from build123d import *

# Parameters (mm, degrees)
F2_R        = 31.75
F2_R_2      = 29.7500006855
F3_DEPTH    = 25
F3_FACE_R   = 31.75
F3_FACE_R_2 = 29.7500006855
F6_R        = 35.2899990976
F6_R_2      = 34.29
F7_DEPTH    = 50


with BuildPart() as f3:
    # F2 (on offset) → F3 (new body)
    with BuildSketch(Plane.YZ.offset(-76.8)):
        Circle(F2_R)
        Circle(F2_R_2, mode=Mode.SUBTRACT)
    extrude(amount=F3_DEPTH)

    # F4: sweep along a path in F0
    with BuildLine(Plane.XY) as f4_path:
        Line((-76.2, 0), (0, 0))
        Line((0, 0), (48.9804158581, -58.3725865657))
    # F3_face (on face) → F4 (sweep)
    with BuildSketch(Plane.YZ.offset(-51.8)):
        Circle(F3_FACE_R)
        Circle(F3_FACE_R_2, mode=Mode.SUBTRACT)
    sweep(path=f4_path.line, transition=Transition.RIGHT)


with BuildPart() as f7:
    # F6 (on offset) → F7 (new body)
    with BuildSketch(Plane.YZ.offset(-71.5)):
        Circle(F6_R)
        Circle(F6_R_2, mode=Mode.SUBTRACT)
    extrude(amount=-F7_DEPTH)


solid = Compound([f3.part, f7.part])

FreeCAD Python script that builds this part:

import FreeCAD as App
import Part
import Sketcher
from FreeCAD import Vector
Q = App.Units.Quantity

doc = App.newDocument("Part")
body = doc.addObject("PartDesign::Body", "Body")

# Sketch on YZ plane
sketch1 = body.newObject("Sketcher::SketchObject", "Sketch")
sketch1.AttachmentSupport = (doc.getObject("YZ_Plane"), [""])
sketch1.MapMode = "FlatFace"
sketch1.AttachmentOffset = App.Placement(Vector(0, 0, -76.8), App.Rotation())
sketch1.addGeometry(Part.Circle(Vector(0, 0, 0), Vector(0, 0, 1), 32), False)
sketch1.addGeometry(Part.Circle(Vector(0, 0, 0), Vector(0, 0, 1), 30), False)
sketch1.addConstraint(Sketcher.Constraint("Coincident", 0, 3, -1, 1))
sketch1.addConstraint(Sketcher.Constraint("Coincident", 1, 3, -1, 1))
sketch1.addConstraint(Sketcher.Constraint("Diameter", 0, Q("63.5 mm")))
sketch1.addConstraint(Sketcher.Constraint("Diameter", 1, Q("59.500001 mm")))
pad1 = body.newObject("PartDesign::Pad", "Pad")
pad1.Profile = sketch1
pad1.Length = 25

# Sketch on YZ plane
sketch2 = body.newObject("Sketcher::SketchObject", "Sketch001")
sketch2.AttachmentSupport = (doc.getObject("YZ_Plane"), [""])
sketch2.MapMode = "FlatFace"
sketch2.AttachmentOffset = App.Placement(Vector(0, 0, -51.8), App.Rotation())
sketch2.addGeometry(Part.Circle(Vector(0, 0, 0), Vector(0, 0, 1), 32), False)
sketch2.addGeometry(Part.Circle(Vector(0, 0, 0), Vector(0, 0, 1), 30), False)
sketch2.addConstraint(Sketcher.Constraint("Coincident", 0, 3, -1, 1))
sketch2.addConstraint(Sketcher.Constraint("Coincident", 1, 3, -1, 1))
sketch2.addConstraint(Sketcher.Constraint("Diameter", 0, Q("63.5 mm")))
sketch2.addConstraint(Sketcher.Constraint("Diameter", 1, Q("59.500001 mm")))

# Sketch on XY plane
sketch3 = body.newObject("Sketcher::SketchObject", "Sketch002")
sketch3.AttachmentSupport = (doc.getObject("XY_Plane"), [""])
sketch3.MapMode = "FlatFace"
sketch3.addGeometry(Part.LineSegment(Vector(-76, 0, 0), Vector(0, 0, 0)), False)
sketch3.addGeometry(Part.LineSegment(Vector(0, 0, 0), Vector(49, -58, 0)), False)
sketch3.addConstraint(Sketcher.Constraint("Coincident", 0, 2, 1, 1))
sketch3.addConstraint(Sketcher.Constraint("Horizontal", 0))
sketch3.addConstraint(Sketcher.Constraint("Coincident", 0, 2, -1, 1))
sketch3.addConstraint(Sketcher.Constraint("Angle", 1, Q("-50 deg")))
sketch3.addConstraint(Sketcher.Constraint("DistanceX", 0, 1, 0, 2, Q("76.2 mm")))
sketch3.addConstraint(Sketcher.Constraint("Distance", 1, Q("76.2 mm")))
doc.recompute()

additivepipe = body.newObject("PartDesign::AdditivePipe", "AdditivePipe")
additivepipe.Profile = sketch2
additivepipe.Spine = (sketch3, ["Edge1", "Edge2"])
additivepipe.Transition = "Right corner"
body2 = doc.addObject("PartDesign::Body", "Body001")

# Sketch on YZ plane
sketch4 = body2.newObject("Sketcher::SketchObject", "Sketch003")
sketch4.AttachmentSupport = (doc.getObject("YZ_Plane001"), [""])
sketch4.MapMode = "FlatFace"
sketch4.AttachmentOffset = App.Placement(Vector(0, 0, -71.5), App.Rotation())
sketch4.addGeometry(Part.Circle(Vector(0, 0, 0), Vector(0, 0, 1), 35), False)
sketch4.addGeometry(Part.Circle(Vector(0, 0, 0), Vector(0, 0, 1), 34), False)
sketch4.addConstraint(Sketcher.Constraint("Coincident", 0, 3, -1, 1))
sketch4.addConstraint(Sketcher.Constraint("Coincident", 1, 3, -1, 1))
sketch4.addConstraint(Sketcher.Constraint("Diameter", 0, Q("70.579998 mm")))
sketch4.addConstraint(Sketcher.Constraint("Diameter", 1, Q("68.58 mm")))
pad2 = body2.newObject("PartDesign::Pad", "Pad001")
pad2.Profile = sketch4
pad2.Length = 50
pad2.Reversed = True

doc.recompute()
